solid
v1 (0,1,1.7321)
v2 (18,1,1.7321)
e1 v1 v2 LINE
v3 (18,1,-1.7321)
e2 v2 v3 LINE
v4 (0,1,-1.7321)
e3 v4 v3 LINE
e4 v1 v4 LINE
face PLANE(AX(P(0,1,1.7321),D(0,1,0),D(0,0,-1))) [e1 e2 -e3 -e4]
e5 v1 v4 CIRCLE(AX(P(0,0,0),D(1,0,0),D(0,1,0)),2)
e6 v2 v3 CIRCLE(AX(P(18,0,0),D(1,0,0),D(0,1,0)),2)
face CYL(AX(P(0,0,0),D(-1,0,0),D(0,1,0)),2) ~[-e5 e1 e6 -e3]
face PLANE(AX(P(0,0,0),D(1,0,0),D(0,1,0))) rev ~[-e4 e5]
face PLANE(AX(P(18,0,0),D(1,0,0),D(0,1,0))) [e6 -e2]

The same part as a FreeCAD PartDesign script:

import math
import FreeCAD as App
import Part
import Sketcher

doc = App.newDocument("Part")
body = doc.addObject("PartDesign::Body", "Body")

# Sketch on YZ plane
sketch1 = body.newObject("Sketcher::SketchObject", "Sketch")
sketch1.AttachmentSupport = (doc.getObject("YZ_Plane"), [""])
sketch1.MapMode = "FlatFace"
sketch1.addGeometry(Part.LineSegment(App.Vector(1, -1.7, 0), App.Vector(1, 1.7, 0)), False)
sketch1.addGeometry(Part.ArcOfCircle(Part.Circle(App.Vector(0, 0, 0), App.Vector(0, 0, 1), 2), math.radians(60), math.radians(300)), False)
sketch1.addConstraint(Sketcher.Constraint("Coincident", 0, 1, 1, 2))
sketch1.addConstraint(Sketcher.Constraint("Coincident", 1, 1, 0, 2))
sketch1.addConstraint(Sketcher.Constraint("Vertical", 0))
sketch1.addConstraint(Sketcher.Constraint("Coincident", 1, 3, -1, 1))
sketch1.addConstraint(Sketcher.Constraint("Radius", 1, 2.0))
sketch1.addConstraint(Sketcher.Constraint("DistanceX", -1, 1, 0, 1, 1.0))
pad1 = body.newObject("PartDesign::Pad", "Pad")
pad1.Profile = sketch1
pad1.Length = 18

doc.recompute()
